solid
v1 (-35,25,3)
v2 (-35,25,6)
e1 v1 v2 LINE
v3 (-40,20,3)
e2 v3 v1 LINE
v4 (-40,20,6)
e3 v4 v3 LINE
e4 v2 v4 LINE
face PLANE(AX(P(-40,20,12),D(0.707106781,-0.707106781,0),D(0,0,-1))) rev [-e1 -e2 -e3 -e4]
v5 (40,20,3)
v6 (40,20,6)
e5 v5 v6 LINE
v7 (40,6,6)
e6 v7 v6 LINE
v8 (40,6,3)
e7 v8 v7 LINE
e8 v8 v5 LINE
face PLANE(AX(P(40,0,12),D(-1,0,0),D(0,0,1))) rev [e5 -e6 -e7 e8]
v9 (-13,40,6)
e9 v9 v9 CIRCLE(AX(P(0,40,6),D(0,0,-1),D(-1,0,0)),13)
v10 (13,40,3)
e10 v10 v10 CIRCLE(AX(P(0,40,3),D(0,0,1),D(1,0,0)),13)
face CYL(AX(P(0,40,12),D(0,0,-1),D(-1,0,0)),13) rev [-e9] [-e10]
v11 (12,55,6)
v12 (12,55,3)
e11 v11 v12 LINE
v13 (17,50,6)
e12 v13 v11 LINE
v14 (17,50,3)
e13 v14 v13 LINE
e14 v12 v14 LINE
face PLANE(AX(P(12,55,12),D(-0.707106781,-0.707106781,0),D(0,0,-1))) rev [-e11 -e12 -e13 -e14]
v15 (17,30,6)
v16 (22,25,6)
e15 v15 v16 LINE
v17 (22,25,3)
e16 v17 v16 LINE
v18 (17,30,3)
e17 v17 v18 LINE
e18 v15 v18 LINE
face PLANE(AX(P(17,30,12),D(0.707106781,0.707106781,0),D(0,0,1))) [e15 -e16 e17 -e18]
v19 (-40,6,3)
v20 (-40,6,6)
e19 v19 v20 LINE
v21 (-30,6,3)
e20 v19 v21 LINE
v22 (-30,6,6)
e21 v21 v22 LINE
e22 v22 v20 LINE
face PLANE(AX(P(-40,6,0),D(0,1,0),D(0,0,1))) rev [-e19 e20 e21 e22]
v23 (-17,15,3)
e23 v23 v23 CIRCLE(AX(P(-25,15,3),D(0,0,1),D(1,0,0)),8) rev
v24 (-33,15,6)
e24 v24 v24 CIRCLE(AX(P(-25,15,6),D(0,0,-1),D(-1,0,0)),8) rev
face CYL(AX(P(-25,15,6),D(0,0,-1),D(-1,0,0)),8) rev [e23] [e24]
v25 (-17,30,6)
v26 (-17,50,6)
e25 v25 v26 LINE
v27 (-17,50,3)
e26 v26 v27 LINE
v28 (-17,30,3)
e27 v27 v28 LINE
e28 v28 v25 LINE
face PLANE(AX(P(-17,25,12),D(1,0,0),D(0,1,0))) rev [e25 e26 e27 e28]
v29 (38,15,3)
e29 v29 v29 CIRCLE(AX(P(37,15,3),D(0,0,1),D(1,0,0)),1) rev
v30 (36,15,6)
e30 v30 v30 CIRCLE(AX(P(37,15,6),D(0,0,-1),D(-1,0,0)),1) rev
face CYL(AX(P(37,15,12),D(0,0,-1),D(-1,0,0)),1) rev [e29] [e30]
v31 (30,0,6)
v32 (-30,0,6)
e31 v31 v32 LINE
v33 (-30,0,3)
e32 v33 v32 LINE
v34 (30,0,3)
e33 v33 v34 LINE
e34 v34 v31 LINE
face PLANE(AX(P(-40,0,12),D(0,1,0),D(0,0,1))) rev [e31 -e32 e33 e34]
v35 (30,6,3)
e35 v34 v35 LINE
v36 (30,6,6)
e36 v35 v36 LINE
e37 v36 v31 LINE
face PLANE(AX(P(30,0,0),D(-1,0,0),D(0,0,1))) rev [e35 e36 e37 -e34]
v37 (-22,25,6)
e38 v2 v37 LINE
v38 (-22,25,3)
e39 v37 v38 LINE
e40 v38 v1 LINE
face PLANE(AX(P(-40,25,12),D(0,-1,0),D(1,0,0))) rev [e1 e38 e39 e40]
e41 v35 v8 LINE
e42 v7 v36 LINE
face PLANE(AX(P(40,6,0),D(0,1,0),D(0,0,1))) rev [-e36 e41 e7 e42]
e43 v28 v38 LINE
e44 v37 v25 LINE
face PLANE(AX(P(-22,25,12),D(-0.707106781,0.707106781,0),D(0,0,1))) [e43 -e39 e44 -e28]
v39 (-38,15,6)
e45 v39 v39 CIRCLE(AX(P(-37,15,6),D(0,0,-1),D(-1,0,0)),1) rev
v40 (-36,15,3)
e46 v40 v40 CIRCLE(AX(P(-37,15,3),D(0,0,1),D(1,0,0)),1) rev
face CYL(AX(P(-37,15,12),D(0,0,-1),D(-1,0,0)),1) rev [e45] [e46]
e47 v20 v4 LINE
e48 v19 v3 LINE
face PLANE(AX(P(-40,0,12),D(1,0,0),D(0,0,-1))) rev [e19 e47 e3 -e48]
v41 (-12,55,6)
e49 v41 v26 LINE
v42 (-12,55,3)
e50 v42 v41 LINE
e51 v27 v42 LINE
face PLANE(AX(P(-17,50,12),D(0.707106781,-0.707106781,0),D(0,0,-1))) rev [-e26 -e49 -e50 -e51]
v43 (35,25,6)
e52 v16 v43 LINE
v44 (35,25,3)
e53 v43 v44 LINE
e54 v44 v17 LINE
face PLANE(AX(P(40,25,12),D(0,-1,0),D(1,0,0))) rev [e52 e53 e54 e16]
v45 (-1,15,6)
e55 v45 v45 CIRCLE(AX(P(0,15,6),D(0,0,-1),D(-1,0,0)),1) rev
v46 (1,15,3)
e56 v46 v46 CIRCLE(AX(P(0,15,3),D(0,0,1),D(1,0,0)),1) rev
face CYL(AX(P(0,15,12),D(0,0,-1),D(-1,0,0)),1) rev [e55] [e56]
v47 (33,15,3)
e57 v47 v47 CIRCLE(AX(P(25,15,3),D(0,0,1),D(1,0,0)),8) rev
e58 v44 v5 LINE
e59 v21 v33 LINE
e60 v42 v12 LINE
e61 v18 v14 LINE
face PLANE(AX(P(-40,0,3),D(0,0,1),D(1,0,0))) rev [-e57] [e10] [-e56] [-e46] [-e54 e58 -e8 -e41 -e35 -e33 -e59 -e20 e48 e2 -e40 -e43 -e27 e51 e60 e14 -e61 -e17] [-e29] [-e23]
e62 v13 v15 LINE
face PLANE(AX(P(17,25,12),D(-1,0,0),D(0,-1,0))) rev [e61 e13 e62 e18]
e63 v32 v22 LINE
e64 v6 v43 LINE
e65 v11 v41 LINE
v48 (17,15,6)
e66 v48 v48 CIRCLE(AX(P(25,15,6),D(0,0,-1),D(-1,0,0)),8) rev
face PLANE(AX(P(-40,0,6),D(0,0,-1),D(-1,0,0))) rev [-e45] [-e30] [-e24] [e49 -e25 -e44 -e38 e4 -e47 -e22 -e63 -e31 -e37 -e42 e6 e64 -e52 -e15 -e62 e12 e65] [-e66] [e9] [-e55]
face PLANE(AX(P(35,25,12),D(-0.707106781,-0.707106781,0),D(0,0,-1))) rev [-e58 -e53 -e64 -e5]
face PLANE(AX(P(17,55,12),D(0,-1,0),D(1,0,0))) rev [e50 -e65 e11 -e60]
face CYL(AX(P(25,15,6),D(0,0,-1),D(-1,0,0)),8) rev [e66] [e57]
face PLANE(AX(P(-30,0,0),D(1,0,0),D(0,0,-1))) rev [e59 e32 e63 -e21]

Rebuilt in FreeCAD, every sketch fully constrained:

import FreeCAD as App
import Part
import Sketcher
from FreeCAD import Vector
Q = App.Units.Quantity


def edges_at(feature, points):
    """Names of the edges that pass closest to the given points."""
    edges = feature.Shape.Edges
    near = lambda p: min(range(len(edges)), key=lambda i: edges[i].distToShape(Part.Vertex(*p))[0])
    return sorted({f"Edge{near(p) + 1}" for p in points})

doc = App.newDocument("Part")
params = doc.addObject("Spreadsheet::Sheet", "Params")
for row, (alias, value) in enumerate([
    ("sketch1_diameter", "26 mm"),
    ("sketch1_width", "80 mm"),
    ("sketch1_width2", "23 mm"),
    ("sketch1_height", "25 mm"),
    ("sketch1_height2", "30 mm"),
    ("pad1_length", "12 mm"),
    ("sketch2_diameter", "26 mm"),
    ("sketch2_diameter2", "11 mm"),
    ("pad2_length", "3 mm"),
    ("sketch3_diameter", "16 mm"),
    ("pocket1_length", "6 mm"),
    ("sketch4_diameter", "6 mm"),
    ("sketch5_width", "10 mm"),
    ("sketch5_height", "6 mm"),
    ("pocket3_length", "12 mm"),
    ("chamfer_size", "5 mm"),
    ("sketch6_diameter", "2 mm"),
    ("pocket4_length", "12 mm"),
    ("sketch7_width", "80 mm"),
    ("sketch7_height", "3 mm"),
    ("sketch7_height2", "6 mm"),
], start=1):
    params.set(f"A{row}", alias)
    params.set(f"B{row}", "=" + value)
    params.setAlias(f"B{row}", alias)

body = doc.addObject("PartDesign::Body", "Body")

sketch1 = doc.addObject("Sketcher::SketchObject", "Sketch")
body.addObject(sketch1)
sketch1.AttachmentSupport = (doc.XY_Plane, [""])
sketch1.MapMode = "FlatFace"
sketch1.addGeometry([
    Part.LineSegment(Vector(-40, 0, 0), Vector(40, 0, 0)),
    Part.LineSegment(Vector(40, 0, 0), Vector(40, 25, 0)),
    Part.LineSegment(Vector(40, 25, 0), Vector(17, 25, 0)),
    Part.LineSegment(Vector(17, 25, 0), Vector(17, 55, 0)),
    Part.LineSegment(Vector(17, 55, 0), Vector(-17, 55, 0)),
    Part.LineSegment(Vector(-17, 55, 0), Vector(-17, 25, 0)),
    Part.LineSegment(Vector(-17, 25, 0), Vector(-40, 25, 0)),
    Part.LineSegment(Vector(-40, 25, 0), Vector(-40, 0, 0)),
    Part.Circle(Vector(0, 40, 0), Vector(0, 0, 1), 13),
], False)
sketch1.addConstraint([
    Sketcher.Constraint("Coincident", 0, 2, 1, 1),
    Sketcher.Constraint("Coincident", 1, 2, 2, 1),
    Sketcher.Constraint("Coincident", 2, 2, 3, 1),
    Sketcher.Constraint("Coincident", 3, 2, 4, 1),
    Sketcher.Constraint("Coincident", 4, 2, 5, 1),
    Sketcher.Constraint("Coincident", 5, 2, 6, 1),
    Sketcher.Constraint("Coincident", 6, 2, 7, 1),
    Sketcher.Constraint("Coincident", 7, 2, 0, 1),
    Sketcher.Constraint("Horizontal", 0),
    Sketcher.Constraint("Vertical", 1),
    Sketcher.Constraint("Horizontal", 2),
    Sketcher.Constraint("Vertical", 3),
    Sketcher.Constraint("Horizontal", 4),
    Sketcher.Constraint("Vertical", 5),
    Sketcher.Constraint("Horizontal", 6),
    Sketcher.Constraint("Vertical", 7),
    Sketcher.Constraint("Symmetric", 0, 2, 7, 2, -1, 1),
    Sketcher.Constraint("Symmetric", 2, 2, 5, 2, -2),
    Sketcher.Constraint("PointOnObject", 8, 3, -2),
    Sketcher.Constraint("Diameter", 8, Q("26 mm")),
    Sketcher.Constraint("DistanceX", 0, 1, 0, 2, Q("80 mm")),
    Sketcher.Constraint("DistanceX", 2, 2, 2, 1, Q("23 mm")),
    Sketcher.Constraint("DistanceY", 1, 1, 1, 2, Q("25 mm")),
    Sketcher.Constraint("DistanceY", 3, 1, 3, 2, Q("30 mm")),
    Sketcher.Constraint("DistanceY", -1, 1, 8, 3, Q("40 mm")),
])
sketch1.setExpression("Constraints[19]", "Params.sketch1_diameter")
sketch1.setExpression("Constraints[20]", "Params.sketch1_width")
sketch1.setExpression("Constraints[21]", "Params.sketch1_width2")
sketch1.setExpression("Constraints[22]", "Params.sketch1_height")
sketch1.setExpression("Constraints[23]", "Params.sketch1_height2")
pad1 = doc.addObject("PartDesign::Pad", "Pad")
body.addObject(pad1)
pad1.Profile = sketch1
pad1.setExpression("Length", "Params.pad1_length")

sketch2 = doc.addObject("Sketcher::SketchObject", "Sketch001")
body.addObject(sketch2)
sketch2.AttachmentSupport = (doc.XY_Plane, [""])
sketch2.MapMode = "FlatFace"
sketch2.addGeometry([
    Part.Circle(Vector(0, 40, 0), Vector(0, 0, 1), 13),
    Part.Circle(Vector(0, 40, 0), Vector(0, 0, 1), 6),
], False)
sketch2.addConstraint([
    Sketcher.Constraint("Coincident", 1, 3, 0, 3),
    Sketcher.Constraint("PointOnObject", 0, 3, -2),
    Sketcher.Constraint("Diameter", 0, Q("26 mm")),
    Sketcher.Constraint("Diameter", 1, Q("11 mm")),
    Sketcher.Constraint("DistanceY", -1, 1, 0, 3, Q("40 mm")),
])
sketch2.setExpression("Constraints[2]", "Params.sketch2_diameter")
sketch2.setExpression("Constraints[3]", "Params.sketch2_diameter2")
pad2 = doc.addObject("PartDesign::Pad", "Pad001")
body.addObject(pad2)
pad2.Profile = sketch2
pad2.setExpression("Length", "Params.pad2_length")

sketch3 = doc.addObject("Sketcher::SketchObject", "Sketch002")
body.addObject(sketch3)
sketch3.AttachmentSupport = (doc.XY_Plane, [""])
sketch3.MapMode = "FlatFace"
sketch3.addGeometry([
    Part.Circle(Vector(25, 15, 0), Vector(0, 0, 1), 8),
    Part.Circle(Vector(-25, 15, 0), Vector(0, 0, 1), 8),
], False)
sketch3.addConstraint([
    Sketcher.Constraint("Equal", 0, 1),
    Sketcher.Constraint("Symmetric", 0, 3, 1, 3, -2),
    Sketcher.Constraint("Diameter", 0, Q("16 mm")),
    Sketcher.Constraint("DistanceX", -1, 1, 0, 3, Q("25 mm")),
    Sketcher.Constraint("DistanceY", -1, 1, 0, 3, Q("15 mm")),
])
sketch3.setExpression("Constraints[2]", "Params.sketch3_diameter")
pocket1 = doc.addObject("PartDesign::Pocket", "Pocket")
body.addObject(pocket1)
pocket1.Profile = sketch3
pocket1.setExpression("Length", "Params.pocket1_length")
pocket1.Reversed = True

sketch4 = doc.addObject("Sketcher::SketchObject", "Sketch003")
body.addObject(sketch4)
sketch4.AttachmentSupport = (doc.XY_Plane, [""])
sketch4.MapMode = "FlatFace"
sketch4.AttachmentOffset = App.Placement(Vector(0, 0, 6), App.Rotation())
sketch4.addGeometry([
    Part.Circle(Vector(25, 15, 0), Vector(0, 0, 1), 3),
    Part.Circle(Vector(-25, 15, 0), Vector(0, 0, 1), 3),
], False)
sketch4.addConstraint([
    Sketcher.Constraint("Equal", 0, 1),
    Sketcher.Constraint("Symmetric", 0, 3, 1, 3, -2),
    Sketcher.Constraint("Diameter", 0, Q("6 mm")),
    Sketcher.Constraint("DistanceX", -1, 1, 0, 3, Q("25 mm")),
    Sketcher.Constraint("DistanceY", -1, 1, 0, 3, Q("15 mm")),
])
sketch4.setExpression("Constraints[2]", "Params.sketch4_diameter")
pocket2 = doc.addObject("PartDesign::Pocket", "Pocket001")
body.addObject(pocket2)
pocket2.Profile = sketch4
pocket2.Type = "ThroughAll"
pocket2.Reversed = True

sketch5 = doc.addObject("Sketcher::SketchObject", "Sketch004")
body.addObject(sketch5)
sketch5.AttachmentSupport = (doc.XY_Plane, [""])
sketch5.MapMode = "FlatFace"
sketch5.addGeometry([
    Part.LineSegment(Vector(30, 6, 0), Vector(30, 0, 0)),
    Part.LineSegment(Vector(30, 0, 0), Vector(40, 0, 0)),
    Part.LineSegment(Vector(40, 0, 0), Vector(40, 6, 0)),
    Part.LineSegment(Vector(40, 6, 0), Vector(30, 6, 0)),
    Part.LineSegment(Vector(-40, 6, 0), Vector(-40, 0, 0)),
    Part.LineSegment(Vector(-40, 0, 0), Vector(-30, 0, 0)),
    Part.LineSegment(Vector(-30, 0, 0), Vector(-30, 6, 0)),
    Part.LineSegment(Vector(-30, 6, 0), Vector(-40, 6, 0)),
], False)
sketch5.addConstraint([
    Sketcher.Constraint("Coincident", 0, 2, 1, 1),
    Sketcher.Constraint("Coincident", 1, 2, 2, 1),
    Sketcher.Constraint("Coincident", 2, 2, 3, 1),
    Sketcher.Constraint("Coincident", 3, 2, 0, 1),
    Sketcher.Constraint("Coincident", 4, 2, 5, 1),
    Sketcher.Constraint("Coincident", 5, 2, 6, 1),
    Sketcher.Constraint("Coincident", 6, 2, 7, 1),
    Sketcher.Constraint("Coincident", 7, 2, 4, 1),
    Sketcher.Constraint("Vertical", 0),
    Sketcher.Constraint("Horizontal", 1),
    Sketcher.Constraint("Vertical", 2),
    Sketcher.Constraint("Horizontal", 3),
    Sketcher.Constraint("Vertical", 4),
    Sketcher.Constraint("Horizontal", 5),
    Sketcher.Constraint("Vertical", 6),
    Sketcher.Constraint("Horizontal", 7),
    Sketcher.Constraint("Symmetric", 1, 2, 4, 2, -1, 1),
    Sketcher.Constraint("Symmetric", 0, 2, 5, 2, -2),
    Sketcher.Constraint("Horizontal", 3, 2, 6, 2),
    Sketcher.Constraint("DistanceX", 1, 1, 1, 2, Q("10 mm")),
    Sketcher.Constraint("DistanceY", 0, 2, 0, 1, Q("6 mm")),
    Sketcher.Constraint("DistanceX", -1, 1, 0, 2, Q("30 mm")),
])
sketch5.setExpression("Constraints[19]", "Params.sketch5_width")
sketch5.setExpression("Constraints[20]", "Params.sketch5_height")
pocket3 = doc.addObject("PartDesign::Pocket", "Pocket002")
body.addObject(pocket3)
pocket3.Profile = sketch5
pocket3.setExpression("Length", "Params.pocket3_length")
pocket3.Reversed = True
doc.recompute()

chamfer = doc.addObject("PartDesign::Chamfer", "Chamfer")
body.addObject(chamfer)
chamfer.Base = (pocket3, edges_at(pocket3, [
    (-17, 55, 6),
    (17, 55, 6),
    (17, 25, 6),
    (40, 25, 6),
    (-40, 25, 6),
    (-17, 25, 6),
]))
chamfer.setExpression("Size", "Params.chamfer_size")

sketch6 = doc.addObject("Sketcher::SketchObject", "Sketch005")
body.addObject(sketch6)
sketch6.AttachmentSupport = (doc.XY_Plane, [""])
sketch6.MapMode = "FlatFace"
sketch6.addGeometry([
    Part.Circle(Vector(10, 45, 0), Vector(0, 0, 1), 1),
    Part.Circle(Vector(-10, 45, 0), Vector(0, 0, 1), 1),
    Part.Circle(Vector(37, 15, 0), Vector(0, 0, 1), 1),
    Part.Circle(Vector(-37, 15, 0), Vector(0, 0, 1), 1),
    Part.Circle(Vector(0, 15, 0), Vector(0, 0, 1), 1),
], False)
sketch6.addConstraint([
    Sketcher.Constraint("Equal", 0, 1),
    Sketcher.Constraint("Equal", 1, 2),
    Sketcher.Constraint("Equal", 2, 3),
    Sketcher.Constraint("Equal", 3, 4),
    Sketcher.Constraint("Symmetric", 0, 3, 1, 3, -2),
    Sketcher.Constraint("Symmetric", 2, 3, 3, 3, -2),
    Sketcher.Constraint("PointOnObject", 4, 3, -2),
    Sketcher.Constraint("Horizontal", 3, 3, 4, 3),
    Sketcher.Constraint("Diameter", 0, Q("2 mm")),
    Sketcher.Constraint("DistanceX", -1, 1, 0, 3, Q("10 mm")),
    Sketcher.Constraint("DistanceY", -1, 1, 0, 3, Q("45 mm")),
    Sketcher.Constraint("DistanceX", -1, 1, 2, 3, Q("37 mm")),
    Sketcher.Constraint("DistanceY", -1, 1, 2, 3, Q("15 mm")),
])
sketch6.setExpression("Constraints[8]", "Params.sketch6_diameter")
pocket4 = doc.addObject("PartDesign::Pocket", "Pocket003")
body.addObject(pocket4)
pocket4.Profile = sketch6
pocket4.setExpression("Length", "Params.pocket4_length")
pocket4.Reversed = True

sketch7 = doc.addObject("Sketcher::SketchObject", "Sketch006")
body.addObject(sketch7)
sketch7.AttachmentSupport = (doc.XZ_Plane, [""])
sketch7.MapMode = "FlatFace"
sketch7.AttachmentOffset = App.Placement(Vector(0, 0, -55), App.Rotation())
sketch7.addGeometry([
    Part.LineSegment(Vector(-40, 0, 0), Vector(-40, 3, 0)),
    Part.LineSegment(Vector(-40, 3, 0), Vector(40, 3, 0)),
    Part.LineSegment(Vector(40, 3, 0), Vector(40, 0, 0)),
    Part.LineSegment(Vector(40, 0, 0), Vector(-40, 0, 0)),
    Part.LineSegment(Vector(-40, 6, 0), Vector(-40, 12, 0)),
    Part.LineSegment(Vector(-40, 12, 0), Vector(40, 12, 0)),
    Part.LineSegment(Vector(40, 12, 0), Vector(40, 6, 0)),
    Part.LineSegment(Vector(40, 6, 0), Vector(-40, 6, 0)),
], False)
sketch7.addConstraint([
    Sketcher.Constraint("Coincident", 0, 2, 1, 1),
    Sketcher.Constraint("Coincident", 1, 2, 2, 1),
    Sketcher.Constraint("Coincident", 2, 2, 3, 1),
    Sketcher.Constraint("Coincident", 3, 2, 0, 1),
    Sketcher.Constraint("Coincident", 4, 2, 5, 1),
    Sketcher.Constraint("Coincident", 5, 2, 6, 1),
    Sketcher.Constraint("Coincident", 6, 2, 7, 1),
    Sketcher.Constraint("Coincident", 7, 2, 4, 1),
    Sketcher.Constraint("Vertical", 0),
    Sketcher.Constraint("Horizontal", 1),
    Sketcher.Constraint("Vertical", 2),
    Sketcher.Constraint("Horizontal", 3),
    Sketcher.Constraint("Vertical", 4),
    Sketcher.Constraint("Horizontal", 5),
    Sketcher.Constraint("Vertical", 6),
    Sketcher.Constraint("Horizontal", 7),
    Sketcher.Constraint("Symmetric", 2, 2, 3, 2, -1, 1),
    Sketcher.Constraint("Vertical", 3, 2, 4, 2),
    Sketcher.Constraint("Vertical", 2, 2, 5, 2),
    Sketcher.Constraint("DistanceX", 1, 1, 1, 2, Q("80 mm")),
    Sketcher.Constraint("DistanceY", 0, 1, 0, 2, Q("3 mm")),
    Sketcher.Constraint("DistanceY", 4, 1, 4, 2, Q("6 mm")),
    Sketcher.Constraint("DistanceY", -1, 1, 4, 2, Q("12 mm")),
])
sketch7.setExpression("Constraints[19]", "Params.sketch7_width")
sketch7.setExpression("Constraints[20]", "Params.sketch7_height")
sketch7.setExpression("Constraints[21]", "Params.sketch7_height2")
pocket5 = doc.addObject("PartDesign::Pocket", "Pocket004")
body.addObject(pocket5)
pocket5.Profile = sketch7
pocket5.Type = "ThroughAll"
pocket5.Reversed = True

doc.recompute()
